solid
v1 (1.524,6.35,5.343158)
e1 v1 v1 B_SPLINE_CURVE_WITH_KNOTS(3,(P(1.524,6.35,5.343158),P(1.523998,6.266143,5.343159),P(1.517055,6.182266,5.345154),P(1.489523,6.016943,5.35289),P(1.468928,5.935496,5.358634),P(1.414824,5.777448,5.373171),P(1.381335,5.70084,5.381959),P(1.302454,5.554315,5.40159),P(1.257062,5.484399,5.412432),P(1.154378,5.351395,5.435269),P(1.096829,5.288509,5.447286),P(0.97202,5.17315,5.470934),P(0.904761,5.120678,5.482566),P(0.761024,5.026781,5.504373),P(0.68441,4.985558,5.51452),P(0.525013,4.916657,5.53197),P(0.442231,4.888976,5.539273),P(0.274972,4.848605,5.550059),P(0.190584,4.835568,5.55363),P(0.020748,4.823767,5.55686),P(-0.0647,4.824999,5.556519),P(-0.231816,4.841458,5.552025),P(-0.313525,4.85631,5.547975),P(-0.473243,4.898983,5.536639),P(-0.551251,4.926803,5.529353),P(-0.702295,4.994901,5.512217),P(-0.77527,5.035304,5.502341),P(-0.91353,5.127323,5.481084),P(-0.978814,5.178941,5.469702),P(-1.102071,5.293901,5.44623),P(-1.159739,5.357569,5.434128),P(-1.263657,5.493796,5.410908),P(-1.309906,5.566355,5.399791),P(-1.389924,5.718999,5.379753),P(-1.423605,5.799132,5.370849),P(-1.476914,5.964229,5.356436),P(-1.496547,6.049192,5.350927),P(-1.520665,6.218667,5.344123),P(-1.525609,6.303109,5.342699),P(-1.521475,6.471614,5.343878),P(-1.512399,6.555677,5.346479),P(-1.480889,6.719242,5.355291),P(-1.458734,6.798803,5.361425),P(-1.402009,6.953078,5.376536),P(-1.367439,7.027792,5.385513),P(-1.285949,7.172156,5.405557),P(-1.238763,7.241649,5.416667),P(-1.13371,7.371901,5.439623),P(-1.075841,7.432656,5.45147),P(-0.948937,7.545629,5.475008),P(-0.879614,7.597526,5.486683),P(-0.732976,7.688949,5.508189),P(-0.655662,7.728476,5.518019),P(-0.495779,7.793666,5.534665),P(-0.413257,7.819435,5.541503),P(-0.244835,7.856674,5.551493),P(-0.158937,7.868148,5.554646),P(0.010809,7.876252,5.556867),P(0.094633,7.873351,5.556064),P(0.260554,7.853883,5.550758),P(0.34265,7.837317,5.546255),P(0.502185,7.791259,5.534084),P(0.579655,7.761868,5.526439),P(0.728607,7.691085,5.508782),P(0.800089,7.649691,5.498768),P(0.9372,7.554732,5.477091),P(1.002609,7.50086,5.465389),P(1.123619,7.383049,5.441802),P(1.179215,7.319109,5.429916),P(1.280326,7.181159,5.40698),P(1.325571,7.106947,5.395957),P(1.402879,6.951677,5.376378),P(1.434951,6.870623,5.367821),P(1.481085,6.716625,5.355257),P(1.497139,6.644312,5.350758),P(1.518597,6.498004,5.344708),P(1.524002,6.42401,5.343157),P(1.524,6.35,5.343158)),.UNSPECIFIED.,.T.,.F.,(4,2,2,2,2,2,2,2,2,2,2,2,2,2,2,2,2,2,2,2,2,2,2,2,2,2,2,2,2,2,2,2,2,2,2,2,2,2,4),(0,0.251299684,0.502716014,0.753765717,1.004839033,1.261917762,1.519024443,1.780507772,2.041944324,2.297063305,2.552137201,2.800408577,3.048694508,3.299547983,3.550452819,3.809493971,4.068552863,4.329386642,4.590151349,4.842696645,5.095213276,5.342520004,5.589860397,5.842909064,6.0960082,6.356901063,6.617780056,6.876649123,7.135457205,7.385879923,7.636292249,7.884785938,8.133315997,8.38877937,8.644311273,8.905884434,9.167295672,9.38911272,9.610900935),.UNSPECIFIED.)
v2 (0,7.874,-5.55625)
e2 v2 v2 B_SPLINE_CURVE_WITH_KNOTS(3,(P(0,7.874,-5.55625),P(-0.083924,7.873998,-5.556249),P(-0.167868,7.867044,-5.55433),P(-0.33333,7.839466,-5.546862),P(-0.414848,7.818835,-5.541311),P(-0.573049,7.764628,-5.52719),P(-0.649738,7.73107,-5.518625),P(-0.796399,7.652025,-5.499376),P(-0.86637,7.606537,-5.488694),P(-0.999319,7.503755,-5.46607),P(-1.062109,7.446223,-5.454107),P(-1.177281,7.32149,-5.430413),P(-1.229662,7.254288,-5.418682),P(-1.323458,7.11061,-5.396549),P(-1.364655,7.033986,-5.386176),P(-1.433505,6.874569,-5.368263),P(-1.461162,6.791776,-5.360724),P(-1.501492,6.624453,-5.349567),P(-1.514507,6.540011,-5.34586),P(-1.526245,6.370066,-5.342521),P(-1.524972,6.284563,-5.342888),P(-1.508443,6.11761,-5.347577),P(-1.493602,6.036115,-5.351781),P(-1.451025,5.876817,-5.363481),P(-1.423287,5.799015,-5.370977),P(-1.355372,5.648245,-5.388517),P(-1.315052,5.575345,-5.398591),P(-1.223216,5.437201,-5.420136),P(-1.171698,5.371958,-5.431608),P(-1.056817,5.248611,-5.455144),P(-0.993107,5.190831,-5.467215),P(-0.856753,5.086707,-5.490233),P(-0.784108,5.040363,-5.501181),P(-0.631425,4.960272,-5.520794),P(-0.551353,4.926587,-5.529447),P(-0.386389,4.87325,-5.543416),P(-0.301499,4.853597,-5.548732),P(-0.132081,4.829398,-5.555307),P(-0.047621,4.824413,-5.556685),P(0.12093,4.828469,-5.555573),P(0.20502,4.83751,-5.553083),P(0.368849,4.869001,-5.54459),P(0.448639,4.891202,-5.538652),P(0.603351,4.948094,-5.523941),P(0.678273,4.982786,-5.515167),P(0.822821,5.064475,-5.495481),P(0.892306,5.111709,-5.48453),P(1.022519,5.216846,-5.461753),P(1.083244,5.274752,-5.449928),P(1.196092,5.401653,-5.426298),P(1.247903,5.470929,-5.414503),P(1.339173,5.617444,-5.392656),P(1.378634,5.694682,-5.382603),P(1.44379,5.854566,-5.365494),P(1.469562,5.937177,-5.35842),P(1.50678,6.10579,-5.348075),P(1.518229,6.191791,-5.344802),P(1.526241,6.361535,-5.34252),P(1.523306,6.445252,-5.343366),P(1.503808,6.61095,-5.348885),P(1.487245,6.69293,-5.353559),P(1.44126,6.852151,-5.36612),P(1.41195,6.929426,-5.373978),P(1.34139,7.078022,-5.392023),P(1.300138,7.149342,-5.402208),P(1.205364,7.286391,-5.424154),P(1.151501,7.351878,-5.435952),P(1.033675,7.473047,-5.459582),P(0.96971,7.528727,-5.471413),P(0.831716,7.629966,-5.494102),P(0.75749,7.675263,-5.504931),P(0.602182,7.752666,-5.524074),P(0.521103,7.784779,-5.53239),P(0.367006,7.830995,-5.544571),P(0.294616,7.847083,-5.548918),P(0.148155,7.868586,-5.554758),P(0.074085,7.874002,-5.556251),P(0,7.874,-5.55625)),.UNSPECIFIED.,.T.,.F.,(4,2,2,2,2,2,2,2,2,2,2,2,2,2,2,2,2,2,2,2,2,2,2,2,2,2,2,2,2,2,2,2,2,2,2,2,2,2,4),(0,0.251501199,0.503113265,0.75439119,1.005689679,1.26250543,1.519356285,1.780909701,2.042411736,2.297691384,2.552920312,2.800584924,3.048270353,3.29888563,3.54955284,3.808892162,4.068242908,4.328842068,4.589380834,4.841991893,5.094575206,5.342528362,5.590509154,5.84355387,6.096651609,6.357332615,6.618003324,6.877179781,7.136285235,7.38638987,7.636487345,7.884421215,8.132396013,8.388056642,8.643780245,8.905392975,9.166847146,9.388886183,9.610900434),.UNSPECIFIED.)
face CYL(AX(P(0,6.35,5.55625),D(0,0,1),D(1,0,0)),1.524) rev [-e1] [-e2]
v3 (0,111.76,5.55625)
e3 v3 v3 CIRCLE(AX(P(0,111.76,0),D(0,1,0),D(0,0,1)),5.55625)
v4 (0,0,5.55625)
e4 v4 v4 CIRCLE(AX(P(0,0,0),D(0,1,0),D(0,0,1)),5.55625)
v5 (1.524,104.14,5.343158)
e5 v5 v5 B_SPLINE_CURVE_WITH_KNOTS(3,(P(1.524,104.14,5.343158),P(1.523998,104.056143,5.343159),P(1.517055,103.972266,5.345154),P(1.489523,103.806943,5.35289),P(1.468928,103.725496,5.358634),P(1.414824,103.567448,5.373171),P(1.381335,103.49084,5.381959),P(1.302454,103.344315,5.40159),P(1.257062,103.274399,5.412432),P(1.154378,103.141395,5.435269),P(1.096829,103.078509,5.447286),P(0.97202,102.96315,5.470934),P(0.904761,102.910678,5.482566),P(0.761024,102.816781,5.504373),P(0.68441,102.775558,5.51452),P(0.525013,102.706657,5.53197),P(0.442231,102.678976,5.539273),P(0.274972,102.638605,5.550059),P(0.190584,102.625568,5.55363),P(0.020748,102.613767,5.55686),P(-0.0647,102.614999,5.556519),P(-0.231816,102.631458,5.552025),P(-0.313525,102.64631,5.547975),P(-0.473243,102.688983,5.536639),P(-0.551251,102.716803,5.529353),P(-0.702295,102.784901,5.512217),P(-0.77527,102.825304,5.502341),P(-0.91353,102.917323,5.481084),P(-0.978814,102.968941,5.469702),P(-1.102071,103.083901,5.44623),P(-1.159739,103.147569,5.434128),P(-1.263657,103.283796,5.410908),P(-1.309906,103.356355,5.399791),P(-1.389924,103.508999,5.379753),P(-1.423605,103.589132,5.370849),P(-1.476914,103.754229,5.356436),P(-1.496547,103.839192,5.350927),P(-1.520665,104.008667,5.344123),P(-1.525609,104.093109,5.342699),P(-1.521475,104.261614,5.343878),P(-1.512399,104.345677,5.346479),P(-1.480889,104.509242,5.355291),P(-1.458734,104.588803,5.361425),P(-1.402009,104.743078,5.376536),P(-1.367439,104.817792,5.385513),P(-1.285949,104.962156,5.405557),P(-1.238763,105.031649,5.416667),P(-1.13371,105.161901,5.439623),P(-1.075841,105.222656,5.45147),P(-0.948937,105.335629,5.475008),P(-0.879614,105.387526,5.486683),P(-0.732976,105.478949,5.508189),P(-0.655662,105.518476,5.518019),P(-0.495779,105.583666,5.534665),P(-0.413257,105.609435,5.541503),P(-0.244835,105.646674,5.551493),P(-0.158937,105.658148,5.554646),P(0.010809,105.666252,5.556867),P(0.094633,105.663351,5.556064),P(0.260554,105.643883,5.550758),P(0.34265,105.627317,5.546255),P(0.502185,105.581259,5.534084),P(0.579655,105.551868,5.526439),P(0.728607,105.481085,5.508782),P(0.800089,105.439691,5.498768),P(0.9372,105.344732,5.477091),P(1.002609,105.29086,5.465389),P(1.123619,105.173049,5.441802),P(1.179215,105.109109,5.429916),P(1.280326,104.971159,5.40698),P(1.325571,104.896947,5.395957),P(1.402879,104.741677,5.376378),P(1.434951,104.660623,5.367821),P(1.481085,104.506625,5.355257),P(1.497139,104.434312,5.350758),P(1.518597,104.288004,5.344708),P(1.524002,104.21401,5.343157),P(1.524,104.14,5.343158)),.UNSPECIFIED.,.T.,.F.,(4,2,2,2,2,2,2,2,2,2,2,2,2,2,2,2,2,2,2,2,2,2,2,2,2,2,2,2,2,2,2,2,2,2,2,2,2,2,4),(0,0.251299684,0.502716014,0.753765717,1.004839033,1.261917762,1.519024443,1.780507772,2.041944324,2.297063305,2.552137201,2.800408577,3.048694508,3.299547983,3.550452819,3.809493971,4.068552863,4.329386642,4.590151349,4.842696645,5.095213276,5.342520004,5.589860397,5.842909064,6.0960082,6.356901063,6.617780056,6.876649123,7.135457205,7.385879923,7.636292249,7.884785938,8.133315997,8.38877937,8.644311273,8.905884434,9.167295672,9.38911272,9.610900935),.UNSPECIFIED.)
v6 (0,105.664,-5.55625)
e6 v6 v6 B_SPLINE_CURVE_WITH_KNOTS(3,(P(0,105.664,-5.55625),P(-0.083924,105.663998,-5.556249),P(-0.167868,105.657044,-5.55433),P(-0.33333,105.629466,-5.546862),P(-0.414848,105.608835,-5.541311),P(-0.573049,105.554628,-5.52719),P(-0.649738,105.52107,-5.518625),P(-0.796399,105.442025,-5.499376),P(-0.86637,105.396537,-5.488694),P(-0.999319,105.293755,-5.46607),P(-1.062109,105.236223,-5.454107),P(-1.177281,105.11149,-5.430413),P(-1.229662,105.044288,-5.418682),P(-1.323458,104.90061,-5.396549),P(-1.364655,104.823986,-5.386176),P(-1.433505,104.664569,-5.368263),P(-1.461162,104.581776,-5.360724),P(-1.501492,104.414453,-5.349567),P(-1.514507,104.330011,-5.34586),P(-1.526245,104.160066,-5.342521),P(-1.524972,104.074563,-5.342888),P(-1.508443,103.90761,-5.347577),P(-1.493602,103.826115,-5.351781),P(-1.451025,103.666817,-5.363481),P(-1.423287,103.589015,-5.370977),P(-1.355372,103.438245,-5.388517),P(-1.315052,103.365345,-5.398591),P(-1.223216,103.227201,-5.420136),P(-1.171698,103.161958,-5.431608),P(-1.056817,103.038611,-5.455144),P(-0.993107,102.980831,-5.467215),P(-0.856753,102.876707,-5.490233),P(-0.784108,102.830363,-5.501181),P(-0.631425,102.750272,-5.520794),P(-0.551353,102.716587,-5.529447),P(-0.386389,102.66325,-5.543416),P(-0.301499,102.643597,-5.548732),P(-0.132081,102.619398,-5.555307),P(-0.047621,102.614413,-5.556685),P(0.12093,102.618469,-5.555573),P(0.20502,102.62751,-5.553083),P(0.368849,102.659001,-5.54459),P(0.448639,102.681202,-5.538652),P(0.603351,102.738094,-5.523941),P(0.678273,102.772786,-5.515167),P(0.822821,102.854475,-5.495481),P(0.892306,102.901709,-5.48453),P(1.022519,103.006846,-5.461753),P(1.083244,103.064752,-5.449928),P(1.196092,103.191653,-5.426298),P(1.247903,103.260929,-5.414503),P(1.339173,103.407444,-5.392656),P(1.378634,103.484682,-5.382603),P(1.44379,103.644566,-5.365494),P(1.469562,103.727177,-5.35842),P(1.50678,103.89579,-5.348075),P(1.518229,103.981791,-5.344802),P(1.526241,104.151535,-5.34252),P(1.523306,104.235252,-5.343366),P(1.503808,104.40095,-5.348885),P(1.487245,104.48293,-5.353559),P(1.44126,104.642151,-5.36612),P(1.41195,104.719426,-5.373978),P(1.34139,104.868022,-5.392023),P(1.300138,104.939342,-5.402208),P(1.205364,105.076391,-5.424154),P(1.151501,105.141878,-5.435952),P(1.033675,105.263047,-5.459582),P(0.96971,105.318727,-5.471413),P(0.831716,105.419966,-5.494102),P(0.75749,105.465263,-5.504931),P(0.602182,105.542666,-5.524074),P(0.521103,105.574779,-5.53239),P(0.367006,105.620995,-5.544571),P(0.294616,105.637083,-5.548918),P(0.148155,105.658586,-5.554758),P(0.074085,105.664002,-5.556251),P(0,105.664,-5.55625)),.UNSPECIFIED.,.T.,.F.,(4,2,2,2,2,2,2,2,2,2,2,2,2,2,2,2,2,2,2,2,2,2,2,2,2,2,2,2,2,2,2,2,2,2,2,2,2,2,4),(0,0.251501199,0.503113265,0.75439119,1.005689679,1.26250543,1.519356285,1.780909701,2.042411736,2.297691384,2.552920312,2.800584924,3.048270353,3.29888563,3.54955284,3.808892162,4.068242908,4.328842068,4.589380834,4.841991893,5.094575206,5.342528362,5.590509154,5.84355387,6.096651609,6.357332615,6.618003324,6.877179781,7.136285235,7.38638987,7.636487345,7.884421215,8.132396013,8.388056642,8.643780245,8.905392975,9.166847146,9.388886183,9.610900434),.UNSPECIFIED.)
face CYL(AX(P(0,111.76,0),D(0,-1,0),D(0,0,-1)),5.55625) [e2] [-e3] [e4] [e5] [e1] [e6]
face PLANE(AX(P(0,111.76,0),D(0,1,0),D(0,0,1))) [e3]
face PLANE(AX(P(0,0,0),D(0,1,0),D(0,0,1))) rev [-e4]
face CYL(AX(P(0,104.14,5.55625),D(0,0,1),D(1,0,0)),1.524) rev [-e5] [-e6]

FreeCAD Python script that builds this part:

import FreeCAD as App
import Part
import Sketcher
Q = App.Units.Quantity

doc = App.newDocument("Part")
body = doc.addObject("PartDesign::Body", "Body")

# Sketch on XZ plane
sketch1 = body.newObject("Sketcher::SketchObject", "Sketch")
sketch1.AttachmentSupport = (doc.getObject("XZ_Plane"), [""])
sketch1.MapMode = "FlatFace"
sketch1.addGeometry(Part.Circle(App.Vector(0, 0, 0), App.Vector(0, 0, 1), 6), False)
sketch1.addConstraint(Sketcher.Constraint("Coincident", 0, 3, -1, 1))
sketch1.addConstraint(Sketcher.Constraint("Diameter", 0, Q("0.4375 in")))
pad1 = body.newObject("PartDesign::Pad", "Pad")
pad1.Profile = sketch1
pad1.Length = Q("4.4 in")
pad1.Reversed = True

# Sketch on XY plane
sketch2 = body.newObject("Sketcher::SketchObject", "Sketch001")
sketch2.AttachmentSupport = (doc.getObject("XY_Plane"), [""])
sketch2.MapMode = "FlatFace"
sketch2.AttachmentOffset = App.Placement(App.Vector(0, 0, 0.21875 * 25.4), App.Rotation())
sketch2.addGeometry(Part.Circle(App.Vector(0, 104.1, 0), App.Vector(0, 0, 1), 1.5), False)
sketch2.addGeometry(Part.Circle(App.Vector(0, 6.3, 0), App.Vector(0, 0, 1), 1.5), False)
sketch2.addConstraint(Sketcher.Constraint("Equal", 0, 1))
sketch2.addConstraint(Sketcher.Constraint("PointOnObject", 0, 3, -2))
sketch2.addConstraint(Sketcher.Constraint("PointOnObject", 1, 3, -2))
sketch2.addConstraint(Sketcher.Constraint("Diameter", 0, Q("0.12 in")))
sketch2.addConstraint(Sketcher.Constraint("DistanceY", -1, 1, 0, 3, Q("4.1 in")))
sketch2.addConstraint(Sketcher.Constraint("DistanceY", -1, 1, 1, 3, Q("0.25 in")))
doc.recompute()
hole = body.newObject("PartDesign::Hole", "Hole")
hole.Profile = sketch2
hole.ThreadType = "None"
hole.Diameter = Q("0.12 in")
hole.DepthType = "ThroughAll"

doc.recompute()
